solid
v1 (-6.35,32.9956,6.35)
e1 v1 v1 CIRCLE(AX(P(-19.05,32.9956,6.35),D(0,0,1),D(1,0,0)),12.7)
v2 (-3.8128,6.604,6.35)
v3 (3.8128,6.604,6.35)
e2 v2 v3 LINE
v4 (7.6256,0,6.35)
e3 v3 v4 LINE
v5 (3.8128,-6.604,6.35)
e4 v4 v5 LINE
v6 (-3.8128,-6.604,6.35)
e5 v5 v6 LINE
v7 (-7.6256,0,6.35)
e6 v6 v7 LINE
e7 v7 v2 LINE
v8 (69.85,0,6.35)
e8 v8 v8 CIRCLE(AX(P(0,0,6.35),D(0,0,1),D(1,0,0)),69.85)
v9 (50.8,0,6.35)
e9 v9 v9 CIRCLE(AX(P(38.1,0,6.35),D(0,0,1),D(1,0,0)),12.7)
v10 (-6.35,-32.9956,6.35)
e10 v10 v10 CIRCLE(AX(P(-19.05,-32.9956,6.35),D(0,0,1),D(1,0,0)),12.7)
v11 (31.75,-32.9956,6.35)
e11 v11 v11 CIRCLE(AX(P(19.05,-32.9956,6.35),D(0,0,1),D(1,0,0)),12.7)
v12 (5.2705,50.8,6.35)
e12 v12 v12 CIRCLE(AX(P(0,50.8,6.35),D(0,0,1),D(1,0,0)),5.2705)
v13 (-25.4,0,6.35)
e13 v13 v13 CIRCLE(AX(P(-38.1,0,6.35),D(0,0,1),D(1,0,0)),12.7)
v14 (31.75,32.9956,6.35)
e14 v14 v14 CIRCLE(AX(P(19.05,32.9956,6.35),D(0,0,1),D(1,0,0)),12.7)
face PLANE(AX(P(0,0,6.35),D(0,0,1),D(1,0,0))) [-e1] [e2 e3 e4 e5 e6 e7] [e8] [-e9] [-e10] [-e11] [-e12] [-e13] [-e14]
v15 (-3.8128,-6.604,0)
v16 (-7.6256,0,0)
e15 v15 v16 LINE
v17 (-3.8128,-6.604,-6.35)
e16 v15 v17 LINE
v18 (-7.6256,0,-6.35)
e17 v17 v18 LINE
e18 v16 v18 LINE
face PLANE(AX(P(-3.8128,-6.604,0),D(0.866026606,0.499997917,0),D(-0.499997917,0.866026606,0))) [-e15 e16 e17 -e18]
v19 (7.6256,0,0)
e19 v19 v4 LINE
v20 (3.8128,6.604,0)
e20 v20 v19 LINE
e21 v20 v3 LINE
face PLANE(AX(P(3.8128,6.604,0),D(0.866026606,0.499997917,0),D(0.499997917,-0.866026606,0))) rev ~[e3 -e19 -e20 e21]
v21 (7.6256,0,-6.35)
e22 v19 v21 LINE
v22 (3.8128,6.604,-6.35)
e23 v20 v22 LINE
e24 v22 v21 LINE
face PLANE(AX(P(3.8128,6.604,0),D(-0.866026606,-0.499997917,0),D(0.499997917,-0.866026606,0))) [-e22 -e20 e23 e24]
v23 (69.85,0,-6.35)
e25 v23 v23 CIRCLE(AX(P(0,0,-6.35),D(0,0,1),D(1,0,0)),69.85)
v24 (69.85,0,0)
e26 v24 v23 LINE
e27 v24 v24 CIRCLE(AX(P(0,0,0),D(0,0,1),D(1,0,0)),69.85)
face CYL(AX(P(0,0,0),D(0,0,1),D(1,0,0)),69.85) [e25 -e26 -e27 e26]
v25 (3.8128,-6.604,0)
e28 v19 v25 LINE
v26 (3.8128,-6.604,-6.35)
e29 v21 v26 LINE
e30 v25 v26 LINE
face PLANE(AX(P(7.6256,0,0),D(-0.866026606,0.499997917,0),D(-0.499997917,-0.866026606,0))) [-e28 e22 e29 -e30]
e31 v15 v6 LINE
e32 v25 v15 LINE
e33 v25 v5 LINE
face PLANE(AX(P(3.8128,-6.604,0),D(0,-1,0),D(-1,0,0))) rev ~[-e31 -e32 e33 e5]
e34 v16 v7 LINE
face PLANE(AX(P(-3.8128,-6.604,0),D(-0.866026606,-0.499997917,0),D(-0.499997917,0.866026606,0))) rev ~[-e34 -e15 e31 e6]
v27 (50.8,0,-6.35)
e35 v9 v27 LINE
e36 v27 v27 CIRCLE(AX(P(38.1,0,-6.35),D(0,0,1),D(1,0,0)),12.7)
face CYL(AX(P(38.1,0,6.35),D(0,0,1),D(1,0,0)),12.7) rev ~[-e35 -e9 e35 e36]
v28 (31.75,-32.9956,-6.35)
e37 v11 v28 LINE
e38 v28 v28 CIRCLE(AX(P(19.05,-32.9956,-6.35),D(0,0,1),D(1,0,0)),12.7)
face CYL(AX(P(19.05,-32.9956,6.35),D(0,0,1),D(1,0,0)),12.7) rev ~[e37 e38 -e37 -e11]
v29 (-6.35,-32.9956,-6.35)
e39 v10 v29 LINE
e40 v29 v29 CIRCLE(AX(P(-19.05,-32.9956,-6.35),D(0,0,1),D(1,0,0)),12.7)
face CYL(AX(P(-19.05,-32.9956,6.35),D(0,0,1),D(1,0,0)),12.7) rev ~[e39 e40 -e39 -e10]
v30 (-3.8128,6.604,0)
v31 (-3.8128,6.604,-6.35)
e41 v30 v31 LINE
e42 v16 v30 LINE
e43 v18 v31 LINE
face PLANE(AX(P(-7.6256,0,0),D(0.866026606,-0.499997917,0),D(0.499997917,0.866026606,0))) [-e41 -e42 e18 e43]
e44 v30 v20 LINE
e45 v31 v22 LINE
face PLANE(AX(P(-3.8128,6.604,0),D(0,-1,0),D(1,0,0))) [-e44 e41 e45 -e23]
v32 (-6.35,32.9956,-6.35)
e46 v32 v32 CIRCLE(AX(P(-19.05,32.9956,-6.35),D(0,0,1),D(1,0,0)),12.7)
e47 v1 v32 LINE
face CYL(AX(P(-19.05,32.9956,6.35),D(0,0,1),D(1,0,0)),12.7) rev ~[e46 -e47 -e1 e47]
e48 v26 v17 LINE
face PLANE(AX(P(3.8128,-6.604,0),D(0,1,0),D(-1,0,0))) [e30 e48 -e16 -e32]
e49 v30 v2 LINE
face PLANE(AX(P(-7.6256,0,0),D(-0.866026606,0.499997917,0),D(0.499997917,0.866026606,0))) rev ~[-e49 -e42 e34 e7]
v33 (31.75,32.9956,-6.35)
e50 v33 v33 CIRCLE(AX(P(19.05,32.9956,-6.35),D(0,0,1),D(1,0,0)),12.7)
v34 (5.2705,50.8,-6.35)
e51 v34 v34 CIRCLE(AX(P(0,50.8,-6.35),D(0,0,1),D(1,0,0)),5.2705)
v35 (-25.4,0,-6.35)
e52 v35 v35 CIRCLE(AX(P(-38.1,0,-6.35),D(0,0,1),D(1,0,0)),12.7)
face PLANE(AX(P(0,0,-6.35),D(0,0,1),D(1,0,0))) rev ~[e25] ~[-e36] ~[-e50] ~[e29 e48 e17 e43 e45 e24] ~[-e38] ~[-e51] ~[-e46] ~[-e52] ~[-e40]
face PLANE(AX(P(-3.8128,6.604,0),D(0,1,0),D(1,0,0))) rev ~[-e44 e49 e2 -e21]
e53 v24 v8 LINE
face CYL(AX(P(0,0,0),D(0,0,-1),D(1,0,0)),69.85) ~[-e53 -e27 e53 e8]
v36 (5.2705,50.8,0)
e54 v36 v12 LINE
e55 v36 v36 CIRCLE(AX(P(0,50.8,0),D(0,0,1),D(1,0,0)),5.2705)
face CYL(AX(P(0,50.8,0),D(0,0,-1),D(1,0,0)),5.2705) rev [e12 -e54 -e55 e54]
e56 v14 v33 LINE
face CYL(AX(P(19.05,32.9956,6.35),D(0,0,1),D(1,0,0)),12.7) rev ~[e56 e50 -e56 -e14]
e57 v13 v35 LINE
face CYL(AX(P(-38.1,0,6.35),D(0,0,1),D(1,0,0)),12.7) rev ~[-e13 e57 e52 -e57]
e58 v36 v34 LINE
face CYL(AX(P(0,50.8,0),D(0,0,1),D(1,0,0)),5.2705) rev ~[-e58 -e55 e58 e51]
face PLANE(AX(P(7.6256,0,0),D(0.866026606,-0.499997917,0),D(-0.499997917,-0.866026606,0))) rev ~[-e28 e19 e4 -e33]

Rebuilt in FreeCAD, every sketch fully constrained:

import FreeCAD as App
import Part
import Sketcher

V = App.Vector
Q = App.Units.Quantity

doc = App.newDocument("Part")
body = doc.addObject("PartDesign::Body", "Body")

# Sketch on XY plane
sketch1 = body.newObject("Sketcher::SketchObject", "Sketch")
sketch1.AttachmentSupport = (doc.getObject("XY_Plane"), [""])
sketch1.MapMode = "FlatFace"
sketch1.addGeometry(Part.Circle(V(0, 0, 0), V(0, 0, 1), 70), False)
sketch1.addGeometry(Part.LineSegment(V(4, 7, 0), V(8, 0, 0)), False)
sketch1.addGeometry(Part.LineSegment(V(8, 0, 0), V(4, -7, 0)), False)
sketch1.addGeometry(Part.LineSegment(V(4, -7, 0), V(-4, -7, 0)), False)
sketch1.addGeometry(Part.LineSegment(V(-4, -7, 0), V(-8, 0, 0)), False)
sketch1.addGeometry(Part.LineSegment(V(-8, 0, 0), V(-4, 7, 0)), False)
sketch1.addGeometry(Part.LineSegment(V(-4, 7, 0), V(4, 7, 0)), False)
sketch1.addGeometry(Part.Circle(V(0, 51, 0), V(0, 0, 1), 5), False)
sketch1.addConstraint(Sketcher.Constraint("Coincident", 1, 2, 2, 1))
sketch1.addConstraint(Sketcher.Constraint("Coincident", 2, 2, 3, 1))
sketch1.addConstraint(Sketcher.Constraint("Coincident", 3, 2, 4, 1))
sketch1.addConstraint(Sketcher.Constraint("Coincident", 4, 2, 5, 1))
sketch1.addConstraint(Sketcher.Constraint("Coincident", 5, 2, 6, 1))
sketch1.addConstraint(Sketcher.Constraint("Coincident", 6, 2, 1, 1))
sketch1.addConstraint(Sketcher.Constraint("Horizontal", 3))
sketch1.addConstraint(Sketcher.Constraint("Horizontal", 6))
sketch1.addConstraint(Sketcher.Constraint("Coincident", 0, 3, -1, 1))
sketch1.addConstraint(Sketcher.Constraint("Symmetric", 1, 2, 4, 2, -1, 1))
sketch1.addConstraint(Sketcher.Constraint("Symmetric", 2, 2, 5, 2, -1, 1))
sketch1.addConstraint(Sketcher.Constraint("PointOnObject", 7, 3, -2))
sketch1.addConstraint(Sketcher.Constraint("PointOnObject", 1, 2, -1))
sketch1.addConstraint(Sketcher.Constraint("Parallel", 1, 4))
sketch1.addConstraint(Sketcher.Constraint("Vertical", 3, 2, 5, 2))
sketch1.addConstraint(Sketcher.Constraint("Diameter", 0, Q("5.5 in")))
sketch1.addConstraint(Sketcher.Constraint("Diameter", 7, Q("0.415 in")))
sketch1.addConstraint(Sketcher.Constraint("DistanceY", -1, 1, 7, 3, Q("2 in")))
sketch1.addConstraint(Sketcher.Constraint("DistanceY", 3, 2, 5, 2, Q("0.52 in")))
sketch1.addConstraint(Sketcher.Constraint("Angle", 1, Q("-60.0001 deg")))
sketch1.addConstraint(Sketcher.Constraint("DistanceX", 3, 2, 3, 1, Q("7.6256 mm")))
pad1 = body.newObject("PartDesign::Pad", "Pad")
pad1.Profile = sketch1
pad1.Length = Q("0.5 in")
pad1.Midplane = True

# Sketch on XY plane
sketch2 = body.newObject("Sketcher::SketchObject", "Sketch001")
sketch2.AttachmentSupport = (doc.getObject("XY_Plane"), [""])
sketch2.MapMode = "FlatFace"
sketch2.AttachmentOffset = App.Placement(V(0, 0, 0.25 * 25.4), App.Rotation())
sketch2.addGeometry(Part.Circle(V(-38, 0, 0), V(0, 0, 1), 13), False)
sketch2.addGeometry(Part.Circle(V(-19, -33, 0), V(0, 0, 1), 13), False)
sketch2.addGeometry(Part.Circle(V(19, -33, 0), V(0, 0, 1), 13), False)
sketch2.addGeometry(Part.Circle(V(38, 0, 0), V(0, 0, 1), 13), False)
sketch2.addGeometry(Part.Circle(V(19, 33, 0), V(0, 0, 1), 13), False)
sketch2.addGeometry(Part.Circle(V(-19, 33, 0), V(0, 0, 1), 13), False)
sketch2.addConstraint(Sketcher.Constraint("Equal", 0, 1))
sketch2.addConstraint(Sketcher.Constraint("Equal", 1, 2))
sketch2.addConstraint(Sketcher.Constraint("Equal", 2, 3))
sketch2.addConstraint(Sketcher.Constraint("Equal", 3, 4))
sketch2.addConstraint(Sketcher.Constraint("Equal", 4, 5))
sketch2.addConstraint(Sketcher.Constraint("Symmetric", 0, 3, 3, 3, -1, 1))
sketch2.addConstraint(Sketcher.Constraint("Symmetric", 1, 3, 4, 3, -1, 1))
sketch2.addConstraint(Sketcher.Constraint("Symmetric", 2, 3, 5, 3, -1, 1))
sketch2.addConstraint(Sketcher.Constraint("Symmetric", 1, 3, 2, 3, -2))
sketch2.addConstraint(Sketcher.Constraint("PointOnObject", 0, 3, -1))
sketch2.addConstraint(Sketcher.Constraint("Diameter", 0, Q("1 in")))
sketch2.addConstraint(Sketcher.Constraint("DistanceX", 0, 3, -1, 1, Q("1.5 in")))
sketch2.addConstraint(Sketcher.Constraint("DistanceX", 1, 3, 2, 3, Q("1.5 in")))
sketch2.addConstraint(Sketcher.Constraint("DistanceY", 1, 3, -1, 1, Q("32.9956 mm")))
pocket1 = body.newObject("PartDesign::Pocket", "Pocket")
pocket1.Profile = sketch2
pocket1.Type = "ThroughAll"

doc.recompute()
